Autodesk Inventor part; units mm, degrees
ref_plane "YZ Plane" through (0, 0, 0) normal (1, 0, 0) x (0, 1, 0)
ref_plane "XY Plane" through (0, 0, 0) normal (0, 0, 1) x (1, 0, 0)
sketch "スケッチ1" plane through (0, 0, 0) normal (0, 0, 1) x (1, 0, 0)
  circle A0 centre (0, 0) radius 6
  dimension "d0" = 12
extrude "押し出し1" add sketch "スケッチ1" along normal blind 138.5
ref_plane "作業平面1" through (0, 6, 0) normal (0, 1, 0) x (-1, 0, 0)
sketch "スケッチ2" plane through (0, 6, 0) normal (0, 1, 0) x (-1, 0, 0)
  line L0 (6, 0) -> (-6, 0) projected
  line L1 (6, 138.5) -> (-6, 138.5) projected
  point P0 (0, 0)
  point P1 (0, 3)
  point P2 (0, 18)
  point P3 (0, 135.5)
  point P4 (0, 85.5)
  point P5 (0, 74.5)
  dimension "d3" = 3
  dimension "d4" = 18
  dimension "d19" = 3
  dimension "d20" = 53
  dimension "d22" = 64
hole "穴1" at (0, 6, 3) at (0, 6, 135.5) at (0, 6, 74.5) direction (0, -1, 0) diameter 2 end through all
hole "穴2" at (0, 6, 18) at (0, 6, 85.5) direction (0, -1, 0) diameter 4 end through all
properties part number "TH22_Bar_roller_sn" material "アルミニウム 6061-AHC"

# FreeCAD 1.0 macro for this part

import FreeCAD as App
import Part
import Sketcher

doc = App.newDocument("Part")
body = doc.addObject("PartDesign::Body", "Body")

# Sketch on XY plane
sketch1 = body.newObject("Sketcher::SketchObject", "Sketch")
sketch1.AttachmentSupport = (doc.getObject("XY_Plane"), [""])
sketch1.MapMode = "FlatFace"
sketch1.addGeometry(Part.Circle(App.Vector(0, 0, 0), App.Vector(0, 0, 1), 6), False)
sketch1.addConstraint(Sketcher.Constraint("Coincident", 0, 3, -1, 1))
sketch1.addConstraint(Sketcher.Constraint("Diameter", 0, 12.0))
pad1 = body.newObject("PartDesign::Pad", "Pad")
pad1.Profile = sketch1
pad1.Length = 138.5

# Sketch on XZ plane
sketch2 = body.newObject("Sketcher::SketchObject", "Sketch001")
sketch2.AttachmentSupport = (doc.getObject("XZ_Plane"), [""])
sketch2.MapMode = "FlatFace"
sketch2.AttachmentOffset = App.Placement(App.Vector(0, 0, -6), App.Rotation())
sketch2.addGeometry(Part.Circle(App.Vector(0, 3, 0), App.Vector(0, 0, 1), 1), False)
sketch2.addGeometry(Part.Circle(App.Vector(0, 135.5, 0), App.Vector(0, 0, 1), 1), False)
sketch2.addGeometry(Part.Circle(App.Vector(0, 74.5, 0), App.Vector(0, 0, 1), 1), False)
sketch2.addConstraint(Sketcher.Constraint("Equal", 0, 1))
sketch2.addConstraint(Sketcher.Constraint("Equal", 1, 2))
sketch2.addConstraint(Sketcher.Constraint("PointOnObject", 0, 3, -2))
sketch2.addConstraint(Sketcher.Constraint("PointOnObject", 1, 3, -2))
sketch2.addConstraint(Sketcher.Constraint("PointOnObject", 2, 3, -2))
sketch2.addConstraint(Sketcher.Constraint("Diameter", 0, 2.0))
sketch2.addConstraint(Sketcher.Constraint("DistanceY", -1, 1, 0, 3, 3.0))
sketch2.addConstraint(Sketcher.Constraint("DistanceY", 2, 3, 1, 3, 61.0))
sketch2.addConstraint(Sketcher.Constraint("DistanceY", -1, 1, 1, 3, 135.5))
doc.recompute()
hole = body.newObject("PartDesign::Hole", "Hole")
hole.Profile = sketch2
hole.ThreadType = "None"
hole.Diameter = 2
hole.DepthType = "ThroughAll"
hole.Reversed = True

# Sketch on XZ plane
sketch3 = body.newObject("Sketcher::SketchObject", "Sketch002")
sketch3.AttachmentSupport = (doc.getObject("XZ_Plane"), [""])
sketch3.MapMode = "FlatFace"
sketch3.AttachmentOffset = App.Placement(App.Vector(0, 0, -6), App.Rotation())
sketch3.addGeometry(Part.Circle(App.Vector(0, 18, 0), App.Vector(0, 0, 1), 2), False)
sketch3.addGeometry(Part.Circle(App.Vector(0, 85.5, 0), App.Vector(0, 0, 1), 2), False)
sketch3.addConstraint(Sketcher.Constraint("Equal", 0, 1))
sketch3.addConstraint(Sketcher.Constraint("PointOnObject", 0, 3, -2))
sketch3.addConstraint(Sketcher.Constraint("PointOnObject", 1, 3, -2))
sketch3.addConstraint(Sketcher.Constraint("Diameter", 0, 4.0))
sketch3.addConstraint(Sketcher.Constraint("DistanceY", -1, 1, 0, 3, 18.0))
sketch3.addConstraint(Sketcher.Constraint("DistanceY", -1, 1, 1, 3, 85.5))
doc.recompute()
hole2 = body.newObject("PartDesign::Hole", "Hole001")
hole2.Profile = sketch3
hole2.ThreadType = "None"
hole2.Diameter = 4
hole2.DepthType = "ThroughAll"
hole2.Reversed = True

doc.recompute()
